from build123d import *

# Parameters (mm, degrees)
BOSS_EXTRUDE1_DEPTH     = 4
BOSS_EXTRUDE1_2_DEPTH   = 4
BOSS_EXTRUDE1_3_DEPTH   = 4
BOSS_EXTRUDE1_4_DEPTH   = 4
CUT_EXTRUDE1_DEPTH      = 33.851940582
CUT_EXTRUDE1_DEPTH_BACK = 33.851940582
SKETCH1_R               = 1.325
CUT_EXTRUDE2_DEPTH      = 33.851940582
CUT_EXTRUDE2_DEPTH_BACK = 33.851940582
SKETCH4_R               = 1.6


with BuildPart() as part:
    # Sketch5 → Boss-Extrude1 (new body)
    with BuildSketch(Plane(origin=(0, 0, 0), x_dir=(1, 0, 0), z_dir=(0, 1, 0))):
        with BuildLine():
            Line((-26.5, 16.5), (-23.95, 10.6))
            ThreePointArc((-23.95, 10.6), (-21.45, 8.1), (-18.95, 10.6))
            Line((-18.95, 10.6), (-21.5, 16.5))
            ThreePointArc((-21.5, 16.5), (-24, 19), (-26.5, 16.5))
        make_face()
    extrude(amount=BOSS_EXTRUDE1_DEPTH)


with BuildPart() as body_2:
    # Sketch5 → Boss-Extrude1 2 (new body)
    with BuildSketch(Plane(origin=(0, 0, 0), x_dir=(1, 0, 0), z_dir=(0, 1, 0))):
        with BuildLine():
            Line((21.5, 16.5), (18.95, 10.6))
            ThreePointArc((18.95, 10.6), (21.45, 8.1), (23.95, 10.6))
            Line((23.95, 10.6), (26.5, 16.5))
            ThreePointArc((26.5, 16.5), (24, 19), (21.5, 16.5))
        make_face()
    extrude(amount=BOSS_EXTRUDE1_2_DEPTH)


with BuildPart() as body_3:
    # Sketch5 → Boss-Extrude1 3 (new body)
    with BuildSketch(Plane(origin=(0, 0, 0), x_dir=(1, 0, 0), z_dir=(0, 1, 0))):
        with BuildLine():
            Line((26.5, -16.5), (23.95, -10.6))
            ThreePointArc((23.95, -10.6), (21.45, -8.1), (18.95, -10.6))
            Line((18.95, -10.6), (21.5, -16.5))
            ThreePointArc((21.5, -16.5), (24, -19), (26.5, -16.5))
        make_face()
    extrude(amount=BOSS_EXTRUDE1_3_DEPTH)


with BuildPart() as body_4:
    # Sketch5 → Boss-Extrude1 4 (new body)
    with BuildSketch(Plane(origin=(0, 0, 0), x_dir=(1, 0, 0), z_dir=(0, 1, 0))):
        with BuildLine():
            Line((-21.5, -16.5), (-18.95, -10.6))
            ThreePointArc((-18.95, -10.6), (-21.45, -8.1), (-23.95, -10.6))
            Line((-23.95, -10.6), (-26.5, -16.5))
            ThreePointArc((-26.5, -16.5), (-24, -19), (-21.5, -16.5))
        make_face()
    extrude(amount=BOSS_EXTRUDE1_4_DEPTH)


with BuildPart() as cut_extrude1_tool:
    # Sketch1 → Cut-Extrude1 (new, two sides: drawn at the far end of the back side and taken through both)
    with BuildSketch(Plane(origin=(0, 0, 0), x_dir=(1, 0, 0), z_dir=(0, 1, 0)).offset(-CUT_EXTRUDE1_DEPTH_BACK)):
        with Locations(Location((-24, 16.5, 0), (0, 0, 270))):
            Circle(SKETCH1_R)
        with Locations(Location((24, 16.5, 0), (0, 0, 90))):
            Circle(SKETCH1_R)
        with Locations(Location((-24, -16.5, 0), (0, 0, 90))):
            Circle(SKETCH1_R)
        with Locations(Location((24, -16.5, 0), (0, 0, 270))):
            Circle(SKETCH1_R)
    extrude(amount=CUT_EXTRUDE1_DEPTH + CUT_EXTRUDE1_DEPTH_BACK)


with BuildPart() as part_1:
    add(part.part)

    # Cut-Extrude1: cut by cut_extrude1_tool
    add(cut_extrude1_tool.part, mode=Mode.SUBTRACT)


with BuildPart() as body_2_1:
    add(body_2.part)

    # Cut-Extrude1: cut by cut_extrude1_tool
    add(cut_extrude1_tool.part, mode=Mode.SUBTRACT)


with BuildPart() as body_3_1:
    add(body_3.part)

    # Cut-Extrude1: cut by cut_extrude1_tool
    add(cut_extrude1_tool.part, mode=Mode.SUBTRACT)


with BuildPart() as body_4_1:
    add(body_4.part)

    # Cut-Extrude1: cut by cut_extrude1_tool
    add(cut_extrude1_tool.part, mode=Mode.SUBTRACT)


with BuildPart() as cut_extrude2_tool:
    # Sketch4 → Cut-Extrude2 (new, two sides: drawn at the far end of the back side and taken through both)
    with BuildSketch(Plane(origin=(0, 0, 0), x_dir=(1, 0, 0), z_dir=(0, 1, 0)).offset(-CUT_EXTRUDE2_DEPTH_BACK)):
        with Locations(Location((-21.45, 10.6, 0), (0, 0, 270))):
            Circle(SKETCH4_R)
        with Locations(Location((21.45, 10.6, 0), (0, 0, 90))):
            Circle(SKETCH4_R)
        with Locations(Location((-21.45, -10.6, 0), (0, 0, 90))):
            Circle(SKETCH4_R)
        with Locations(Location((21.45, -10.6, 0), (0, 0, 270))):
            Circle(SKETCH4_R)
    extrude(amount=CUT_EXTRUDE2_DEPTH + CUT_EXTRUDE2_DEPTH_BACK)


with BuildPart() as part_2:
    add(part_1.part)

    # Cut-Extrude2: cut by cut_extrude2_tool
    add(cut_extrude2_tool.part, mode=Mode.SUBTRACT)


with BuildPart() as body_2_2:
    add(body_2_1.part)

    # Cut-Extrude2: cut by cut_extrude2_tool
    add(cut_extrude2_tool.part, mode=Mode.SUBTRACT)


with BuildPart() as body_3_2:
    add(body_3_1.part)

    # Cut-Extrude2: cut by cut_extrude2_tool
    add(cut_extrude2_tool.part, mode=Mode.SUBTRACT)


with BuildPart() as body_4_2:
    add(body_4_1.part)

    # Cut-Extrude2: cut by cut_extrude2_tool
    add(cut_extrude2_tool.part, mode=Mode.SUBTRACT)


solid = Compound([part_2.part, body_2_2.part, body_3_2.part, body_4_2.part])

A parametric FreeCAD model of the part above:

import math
import FreeCAD as App
import Part
import Sketcher
from FreeCAD import Vector
Q = App.Units.Quantity

doc = App.newDocument("Part")
body = doc.addObject("PartDesign::Body", "Body")

# Sketch on XZ plane
sketch1 = body.newObject("Sketcher::SketchObject", "Sketch")
sketch1.AttachmentSupport = (doc.getObject("XZ_Plane"), [""])
sketch1.MapMode = "FlatFace"
sketch1.addGeometry([
    Part.LineSegment(Vector(-26.5, -16.5, 0), Vector(-23.9, -10.6, 0)),
    Part.ArcOfCircle(Part.Circle(Vector(-21.4, -10.6, 0), Vector(0, 0, 1), 2.5), math.radians(0), math.radians(180)),
    Part.LineSegment(Vector(-18.9, -10.6, 0), Vector(-21.5, -16.5, 0)),
    Part.ArcOfCircle(Part.Circle(Vector(-24, -16.5, 0), Vector(0, 0, 1), 2.5), math.radians(180), math.radians(360)),
], False)
sketch1.addConstraint([
    Sketcher.Constraint("Coincident", 0, 2, 1, 2),
    Sketcher.Constraint("Coincident", 1, 1, 2, 1),
    Sketcher.Constraint("Coincident", 2, 2, 3, 2),
    Sketcher.Constraint("Coincident", 3, 1, 0, 1),
    Sketcher.Constraint("Equal", 1, 3),
    Sketcher.Constraint("Parallel", 0, 2),
    Sketcher.Constraint("Horizontal", 1, 3, 0, 2),
    Sketcher.Constraint("Horizontal", 0, 2, 1, 1),
    Sketcher.Constraint("Horizontal", 3, 3, 2, 2),
    Sketcher.Constraint("Radius", 1, Q("2.5 mm")),
    Sketcher.Constraint("DistanceX", 3, 3, -1, 1, Q("24 mm")),
    Sketcher.Constraint("DistanceY", 1, 3, -1, 1, Q("10.6 mm")),
    Sketcher.Constraint("DistanceY", 3, 3, -1, 1, Q("16.5 mm")),
    Sketcher.Constraint("DistanceX", 1, 3, -1, 1, Q("21.45 mm")),
])
pad1 = body.newObject("PartDesign::Pad", "Pad")
pad1.Profile = sketch1
pad1.Length = 4
pad1.Reversed = True
body2 = doc.addObject("PartDesign::Body", "Body001")

# Sketch on XZ plane
sketch2 = body2.newObject("Sketcher::SketchObject", "Sketch001")
sketch2.AttachmentSupport = (doc.getObject("XZ_Plane001"), [""])
sketch2.MapMode = "FlatFace"
sketch2.addGeometry([
    Part.LineSegment(Vector(21.5, -16.5, 0), Vector(18.9, -10.6, 0)),
    Part.ArcOfCircle(Part.Circle(Vector(21.4, -10.6, 0), Vector(0, 0, 1), 2.5), math.radians(0), math.radians(180)),
    Part.LineSegment(Vector(23.9, -10.6, 0), Vector(26.5, -16.5, 0)),
    Part.ArcOfCircle(Part.Circle(Vector(24, -16.5, 0), Vector(0, 0, 1), 2.5), math.radians(180), math.radians(360)),
], False)
sketch2.addConstraint([
    Sketcher.Constraint("Coincident", 0, 2, 1, 2),
    Sketcher.Constraint("Coincident", 1, 1, 2, 1),
    Sketcher.Constraint("Coincident", 2, 2, 3, 2),
    Sketcher.Constraint("Coincident", 3, 1, 0, 1),
    Sketcher.Constraint("Equal", 1, 3),
    Sketcher.Constraint("Parallel", 0, 2),
    Sketcher.Constraint("Horizontal", 1, 3, 0, 2),
    Sketcher.Constraint("Horizontal", 0, 2, 1, 1),
    Sketcher.Constraint("Horizontal", 3, 3, 2, 2),
    Sketcher.Constraint("Radius", 1, Q("2.5 mm")),
    Sketcher.Constraint("DistanceX", -1, 1, 3, 3, Q("24 mm")),
    Sketcher.Constraint("DistanceY", 1, 3, -1, 1, Q("10.6 mm")),
    Sketcher.Constraint("DistanceY", 3, 3, -1, 1, Q("16.5 mm")),
    Sketcher.Constraint("DistanceX", -1, 1, 1, 3, Q("21.45 mm")),
])
pad2 = body2.newObject("PartDesign::Pad", "Pad001")
pad2.Profile = sketch2
pad2.Length = 4
pad2.Reversed = True
body3 = doc.addObject("PartDesign::Body", "Body002")

# Sketch on XZ plane
sketch3 = body3.newObject("Sketcher::SketchObject", "Sketch002")
sketch3.AttachmentSupport = (doc.getObject("XZ_Plane002"), [""])
sketch3.MapMode = "FlatFace"
sketch3.addGeometry([
    Part.LineSegment(Vector(26.5, 16.5, 0), Vector(23.9, 10.6, 0)),
    Part.ArcOfCircle(Part.Circle(Vector(21.4, 10.6, 0), Vector(0, 0, 1), 2.5), math.radians(180), math.radians(360)),
    Part.LineSegment(Vector(18.9, 10.6, 0), Vector(21.5, 16.5, 0)),
    Part.ArcOfCircle(Part.Circle(Vector(24, 16.5, 0), Vector(0, 0, 1), 2.5), math.radians(0), math.radians(180)),
], False)
sketch3.addConstraint([
    Sketcher.Constraint("Coincident", 0, 2, 1, 2),
    Sketcher.Constraint("Coincident", 1, 1, 2, 1),
    Sketcher.Constraint("Coincident", 2, 2, 3, 2),
    Sketcher.Constraint("Coincident", 3, 1, 0, 1),
    Sketcher.Constraint("Equal", 1, 3),
    Sketcher.Constraint("Parallel", 0, 2),
    Sketcher.Constraint("Horizontal", 1, 3, 0, 2),
    Sketcher.Constraint("Horizontal", 0, 2, 1, 1),
    Sketcher.Constraint("Horizontal", 3, 3, 2, 2),
    Sketcher.Constraint("Radius", 1, Q("2.5 mm")),
    Sketcher.Constraint("DistanceX", -1, 1, 3, 3, Q("24 mm")),
    Sketcher.Constraint("DistanceY", -1, 1, 1, 3, Q("10.6 mm")),
    Sketcher.Constraint("DistanceY", -1, 1, 3, 3, Q("16.5 mm")),
    Sketcher.Constraint("DistanceX", -1, 1, 1, 3, Q("21.45 mm")),
])
pad3 = body3.newObject("PartDesign::Pad", "Pad002")
pad3.Profile = sketch3
pad3.Length = 4
pad3.Reversed = True
body4 = doc.addObject("PartDesign::Body", "Body003")

# Sketch on XZ plane
sketch4 = body4.newObject("Sketcher::SketchObject", "Sketch003")
sketch4.AttachmentSupport = (doc.getObject("XZ_Plane003"), [""])
sketch4.MapMode = "FlatFace"
sketch4.addGeometry([
    Part.LineSegment(Vector(-21.5, 16.5, 0), Vector(-18.9, 10.6, 0)),
    Part.ArcOfCircle(Part.Circle(Vector(-21.4, 10.6, 0), Vector(0, 0, 1), 2.5), math.radians(180), math.radians(360)),
    Part.LineSegment(Vector(-23.9, 10.6, 0), Vector(-26.5, 16.5, 0)),
    Part.ArcOfCircle(Part.Circle(Vector(-24, 16.5, 0), Vector(0, 0, 1), 2.5), math.radians(0), math.radians(180)),
], False)
sketch4.addConstraint([
    Sketcher.Constraint("Coincident", 0, 2, 1, 2),
    Sketcher.Constraint("Coincident", 1, 1, 2, 1),
    Sketcher.Constraint("Coincident", 2, 2, 3, 2),
    Sketcher.Constraint("Coincident", 3, 1, 0, 1),
    Sketcher.Constraint("Equal", 1, 3),
    Sketcher.Constraint("Parallel", 0, 2),
    Sketcher.Constraint("Horizontal", 1, 3, 0, 2),
    Sketcher.Constraint("Horizontal", 0, 2, 1, 1),
    Sketcher.Constraint("Horizontal", 3, 3, 2, 2),
    Sketcher.Constraint("Radius", 1, Q("2.5 mm")),
    Sketcher.Constraint("DistanceX", 3, 3, -1, 1, Q("24 mm")),
    Sketcher.Constraint("DistanceY", -1, 1, 1, 3, Q("10.6 mm")),
    Sketcher.Constraint("DistanceY", -1, 1, 3, 3, Q("16.5 mm")),
    Sketcher.Constraint("DistanceX", 1, 3, -1, 1, Q("21.45 mm")),
])
pad4 = body4.newObject("PartDesign::Pad", "Pad003")
pad4.Profile = sketch4
pad4.Length = 4
pad4.Reversed = True
body5 = doc.addObject("PartDesign::Body", "Body004")
body5.AllowCompound = True

# Sketch on XZ plane
sketch5 = body5.newObject("Sketcher::SketchObject", "Sketch004")
sketch5.AttachmentSupport = (doc.getObject("XZ_Plane004"), [""])
sketch5.MapMode = "FlatFace"
sketch5.addGeometry([
    Part.Circle(Vector(-24, -16.5, 0), Vector(0, 0, 1), 1.3),
    Part.Circle(Vector(24, -16.5, 0), Vector(0, 0, 1), 1.3),
    Part.Circle(Vector(-24, 16.5, 0), Vector(0, 0, 1), 1.3),
    Part.Circle(Vector(24, 16.5, 0), Vector(0, 0, 1), 1.3),
], False)
sketch5.addConstraint([
    Sketcher.Constraint("Equal", 0, 1),
    Sketcher.Constraint("Equal", 1, 2),
    Sketcher.Constraint("Equal", 2, 3),
    Sketcher.Constraint("Symmetric", 1, 3, 2, 3, -1, 1),
    Sketcher.Constraint("Symmetric", 0, 3, 3, 3, -1, 1),
    Sketcher.Constraint("Symmetric", 0, 3, 1, 3, -2),
    Sketcher.Constraint("Diameter", 0, Q("2.65 mm")),
    Sketcher.Constraint("DistanceX", 0, 3, -1, 1, Q("24 mm")),
    Sketcher.Constraint("DistanceY", 0, 3, 2, 3, Q("33 mm")),
])
pad5 = body5.newObject("PartDesign::Pad", "Pad004")
pad5.Profile = sketch5
pad5.Type = "TwoLengths"
pad5.Length = 33.851941
pad5.Length2 = 33.851941
pad5.Reversed = True
doc.recompute()

body6 = doc.addObject("PartDesign::Body", "Body005")
body6.BaseFeature = body5
boolean = body.newObject("PartDesign::Boolean", "Boolean")
boolean.Type = "Cut"
boolean.addObjects([body6])
doc.recompute()

body7 = doc.addObject("PartDesign::Body", "Body006")
body7.BaseFeature = body5
boolean2 = body2.newObject("PartDesign::Boolean", "Boolean001")
boolean2.Type = "Cut"
boolean2.addObjects([body7])
doc.recompute()

body8 = doc.addObject("PartDesign::Body", "Body007")
body8.BaseFeature = body5
boolean3 = body3.newObject("PartDesign::Boolean", "Boolean002")
boolean3.Type = "Cut"
boolean3.addObjects([body8])
doc.recompute()

boolean4 = body4.newObject("PartDesign::Boolean", "Boolean003")
boolean4.Type = "Cut"
boolean4.addObjects([body5])
body9 = doc.addObject("PartDesign::Body", "Body008")
body9.AllowCompound = True

# Sketch on XZ plane
sketch6 = body9.newObject("Sketcher::SketchObject", "Sketch005")
sketch6.AttachmentSupport = (doc.getObject("XZ_Plane008"), [""])
sketch6.MapMode = "FlatFace"
sketch6.addGeometry([
    Part.Circle(Vector(-21.4, -10.6, 0), Vector(0, 0, 1), 1.6),
    Part.Circle(Vector(21.4, -10.6, 0), Vector(0, 0, 1), 1.6),
    Part.Circle(Vector(-21.4, 10.6, 0), Vector(0, 0, 1), 1.6),
    Part.Circle(Vector(21.4, 10.6, 0), Vector(0, 0, 1), 1.6),
], False)
sketch6.addConstraint([
    Sketcher.Constraint("Equal", 0, 1),
    Sketcher.Constraint("Equal", 1, 2),
    Sketcher.Constraint("Equal", 2, 3),
    Sketcher.Constraint("Symmetric", 1, 3, 2, 3, -1, 1),
    Sketcher.Constraint("Symmetric", 0, 3, 3, 3, -1, 1),
    Sketcher.Constraint("Symmetric", 0, 3, 1, 3, -2),
    Sketcher.Constraint("Diameter", 0, Q("3.2 mm")),
    Sketcher.Constraint("DistanceY", 0, 3, -1, 1, Q("10.6 mm")),
    Sketcher.Constraint("DistanceX", 0, 3, 1, 3, Q("42.9 mm")),
])
pad6 = body9.newObject("PartDesign::Pad", "Pad005")
pad6.Profile = sketch6
pad6.Type = "TwoLengths"
pad6.Length = 33.851941
pad6.Length2 = 33.851941
pad6.Reversed = True
doc.recompute()

body10 = doc.addObject("PartDesign::Body", "Body009")
body10.BaseFeature = body9
boolean5 = body.newObject("PartDesign::Boolean", "Boolean004")
boolean5.Type = "Cut"
boolean5.addObjects([body10])
doc.recompute()

body11 = doc.addObject("PartDesign::Body", "Body010")
body11.BaseFeature = body9
boolean6 = body2.newObject("PartDesign::Boolean", "Boolean005")
boolean6.Type = "Cut"
boolean6.addObjects([body11])
doc.recompute()

body12 = doc.addObject("PartDesign::Body", "Body011")
body12.BaseFeature = body9
boolean7 = body3.newObject("PartDesign::Boolean", "Boolean006")
boolean7.Type = "Cut"
boolean7.addObjects([body12])
doc.recompute()

boolean8 = body4.newObject("PartDesign::Boolean", "Boolean007")
boolean8.Type = "Cut"
boolean8.addObjects([body9])

doc.recompute()
